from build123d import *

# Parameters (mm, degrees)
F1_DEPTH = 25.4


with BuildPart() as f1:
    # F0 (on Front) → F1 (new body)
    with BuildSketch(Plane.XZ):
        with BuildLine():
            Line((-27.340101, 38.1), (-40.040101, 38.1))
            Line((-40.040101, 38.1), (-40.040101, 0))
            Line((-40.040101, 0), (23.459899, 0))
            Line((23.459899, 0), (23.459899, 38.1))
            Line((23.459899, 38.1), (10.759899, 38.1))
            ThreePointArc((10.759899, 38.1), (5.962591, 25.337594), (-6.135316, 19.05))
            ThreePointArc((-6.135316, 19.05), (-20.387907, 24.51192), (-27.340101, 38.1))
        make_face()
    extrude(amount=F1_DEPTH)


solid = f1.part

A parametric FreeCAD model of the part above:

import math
import FreeCAD as App
import Part
import Sketcher
from FreeCAD import Vector
Q = App.Units.Quantity

doc = App.newDocument("Part")
params = doc.addObject("Spreadsheet::Sheet", "Params")
for row, (alias, value) in enumerate([
    ("sketch1_radius", "0.75 in"),
    ("sketch1_width", "0.5 in"),
    ("sketch1_width2", "2.5 in"),
    ("sketch1_height", "1.5 in"),
    ("pad1_length", "1 in"),
], start=1):
    params.set(f"A{row}", alias)
    params.set(f"B{row}", "=" + value)
    params.setAlias(f"B{row}", alias)

body = doc.addObject("PartDesign::Body", "Body")

# Sketch on XZ plane
sketch1 = body.newObject("Sketcher::SketchObject", "Sketch")
sketch1.AttachmentSupport = (doc.getObject("XZ_Plane"), [""])
sketch1.MapMode = "FlatFace"
sketch1.addGeometry([
    Part.LineSegment(Vector(-27, 38, 0), Vector(-40, 38, 0)),  # 0
    Part.LineSegment(Vector(-40, 38, 0), Vector(-40, 0, 0)),  # 1
    Part.LineSegment(Vector(-40, 0, 0), Vector(23, 0, 0)),  # 2
    Part.LineSegment(Vector(23, 0, 0), Vector(23, 38, 0)),  # 3
    Part.LineSegment(Vector(23, 38, 0), Vector(11, 38, 0)),  # 4
    Part.ArcOfCircle(Part.Circle(Vector(-8, 38, 0), Vector(0, 0, 1), 19), math.radians(-84), math.radians(0)),  # 5
    Part.ArcOfCircle(Part.Circle(Vector(-6, 40, 0), Vector(0, 0, 1), 21), math.radians(-174), math.radians(-90)),  # 6
], False)
sketch1.addConstraint([
    Sketcher.Constraint("Coincident", 0, 2, 1, 1),
    Sketcher.Constraint("Coincident", 1, 2, 2, 1),
    Sketcher.Constraint("Coincident", 2, 2, 3, 1),
    Sketcher.Constraint("Coincident", 3, 2, 4, 1),
    Sketcher.Constraint("Coincident", 4, 2, 5, 2),
    Sketcher.Constraint("Coincident", 5, 1, 6, 2),
    Sketcher.Constraint("Coincident", 6, 1, 0, 1),
    Sketcher.Constraint("Horizontal", 0),
    Sketcher.Constraint("Vertical", 1),
    Sketcher.Constraint("Horizontal", 2),
    Sketcher.Constraint("Vertical", 3),
    Sketcher.Constraint("Horizontal", 4),
    Sketcher.Constraint("PointOnObject", 1, 2, -1),
    Sketcher.Constraint("Horizontal", 0, 2, 3, 2),
    Sketcher.Constraint("Vertical", 6, 3, 5, 1),
    Sketcher.Constraint("Equal", 0, 4),
    Sketcher.Constraint("Radius", 5, Q("0.75 in")),
    Sketcher.Constraint("DistanceX", 0, 2, 0, 1, Q("0.5 in")),
    Sketcher.Constraint("DistanceX", 2, 1, 2, 2, Q("2.5 in")),
    Sketcher.Constraint("DistanceY", 1, 2, 1, 1, Q("1.5 in")),
    Sketcher.Constraint("DistanceY", -1, 1, 5, 1, Q("0.75 in")),
    Sketcher.Constraint("Radius", 6, 21.326651),
    Sketcher.Constraint("DistanceX", 0, 2, -1, 1, 40.040101),
])
sketch1.setExpression("Constraints[16]", "Params.sketch1_radius")
sketch1.setExpression("Constraints[17]", "Params.sketch1_width")
sketch1.setExpression("Constraints[18]", "Params.sketch1_width2")
sketch1.setExpression("Constraints[19]", "Params.sketch1_height")
pad1 = body.newObject("PartDesign::Pad", "Pad")
pad1.Profile = sketch1
pad1.setExpression("Length", "Params.pad1_length")

doc.recompute()
